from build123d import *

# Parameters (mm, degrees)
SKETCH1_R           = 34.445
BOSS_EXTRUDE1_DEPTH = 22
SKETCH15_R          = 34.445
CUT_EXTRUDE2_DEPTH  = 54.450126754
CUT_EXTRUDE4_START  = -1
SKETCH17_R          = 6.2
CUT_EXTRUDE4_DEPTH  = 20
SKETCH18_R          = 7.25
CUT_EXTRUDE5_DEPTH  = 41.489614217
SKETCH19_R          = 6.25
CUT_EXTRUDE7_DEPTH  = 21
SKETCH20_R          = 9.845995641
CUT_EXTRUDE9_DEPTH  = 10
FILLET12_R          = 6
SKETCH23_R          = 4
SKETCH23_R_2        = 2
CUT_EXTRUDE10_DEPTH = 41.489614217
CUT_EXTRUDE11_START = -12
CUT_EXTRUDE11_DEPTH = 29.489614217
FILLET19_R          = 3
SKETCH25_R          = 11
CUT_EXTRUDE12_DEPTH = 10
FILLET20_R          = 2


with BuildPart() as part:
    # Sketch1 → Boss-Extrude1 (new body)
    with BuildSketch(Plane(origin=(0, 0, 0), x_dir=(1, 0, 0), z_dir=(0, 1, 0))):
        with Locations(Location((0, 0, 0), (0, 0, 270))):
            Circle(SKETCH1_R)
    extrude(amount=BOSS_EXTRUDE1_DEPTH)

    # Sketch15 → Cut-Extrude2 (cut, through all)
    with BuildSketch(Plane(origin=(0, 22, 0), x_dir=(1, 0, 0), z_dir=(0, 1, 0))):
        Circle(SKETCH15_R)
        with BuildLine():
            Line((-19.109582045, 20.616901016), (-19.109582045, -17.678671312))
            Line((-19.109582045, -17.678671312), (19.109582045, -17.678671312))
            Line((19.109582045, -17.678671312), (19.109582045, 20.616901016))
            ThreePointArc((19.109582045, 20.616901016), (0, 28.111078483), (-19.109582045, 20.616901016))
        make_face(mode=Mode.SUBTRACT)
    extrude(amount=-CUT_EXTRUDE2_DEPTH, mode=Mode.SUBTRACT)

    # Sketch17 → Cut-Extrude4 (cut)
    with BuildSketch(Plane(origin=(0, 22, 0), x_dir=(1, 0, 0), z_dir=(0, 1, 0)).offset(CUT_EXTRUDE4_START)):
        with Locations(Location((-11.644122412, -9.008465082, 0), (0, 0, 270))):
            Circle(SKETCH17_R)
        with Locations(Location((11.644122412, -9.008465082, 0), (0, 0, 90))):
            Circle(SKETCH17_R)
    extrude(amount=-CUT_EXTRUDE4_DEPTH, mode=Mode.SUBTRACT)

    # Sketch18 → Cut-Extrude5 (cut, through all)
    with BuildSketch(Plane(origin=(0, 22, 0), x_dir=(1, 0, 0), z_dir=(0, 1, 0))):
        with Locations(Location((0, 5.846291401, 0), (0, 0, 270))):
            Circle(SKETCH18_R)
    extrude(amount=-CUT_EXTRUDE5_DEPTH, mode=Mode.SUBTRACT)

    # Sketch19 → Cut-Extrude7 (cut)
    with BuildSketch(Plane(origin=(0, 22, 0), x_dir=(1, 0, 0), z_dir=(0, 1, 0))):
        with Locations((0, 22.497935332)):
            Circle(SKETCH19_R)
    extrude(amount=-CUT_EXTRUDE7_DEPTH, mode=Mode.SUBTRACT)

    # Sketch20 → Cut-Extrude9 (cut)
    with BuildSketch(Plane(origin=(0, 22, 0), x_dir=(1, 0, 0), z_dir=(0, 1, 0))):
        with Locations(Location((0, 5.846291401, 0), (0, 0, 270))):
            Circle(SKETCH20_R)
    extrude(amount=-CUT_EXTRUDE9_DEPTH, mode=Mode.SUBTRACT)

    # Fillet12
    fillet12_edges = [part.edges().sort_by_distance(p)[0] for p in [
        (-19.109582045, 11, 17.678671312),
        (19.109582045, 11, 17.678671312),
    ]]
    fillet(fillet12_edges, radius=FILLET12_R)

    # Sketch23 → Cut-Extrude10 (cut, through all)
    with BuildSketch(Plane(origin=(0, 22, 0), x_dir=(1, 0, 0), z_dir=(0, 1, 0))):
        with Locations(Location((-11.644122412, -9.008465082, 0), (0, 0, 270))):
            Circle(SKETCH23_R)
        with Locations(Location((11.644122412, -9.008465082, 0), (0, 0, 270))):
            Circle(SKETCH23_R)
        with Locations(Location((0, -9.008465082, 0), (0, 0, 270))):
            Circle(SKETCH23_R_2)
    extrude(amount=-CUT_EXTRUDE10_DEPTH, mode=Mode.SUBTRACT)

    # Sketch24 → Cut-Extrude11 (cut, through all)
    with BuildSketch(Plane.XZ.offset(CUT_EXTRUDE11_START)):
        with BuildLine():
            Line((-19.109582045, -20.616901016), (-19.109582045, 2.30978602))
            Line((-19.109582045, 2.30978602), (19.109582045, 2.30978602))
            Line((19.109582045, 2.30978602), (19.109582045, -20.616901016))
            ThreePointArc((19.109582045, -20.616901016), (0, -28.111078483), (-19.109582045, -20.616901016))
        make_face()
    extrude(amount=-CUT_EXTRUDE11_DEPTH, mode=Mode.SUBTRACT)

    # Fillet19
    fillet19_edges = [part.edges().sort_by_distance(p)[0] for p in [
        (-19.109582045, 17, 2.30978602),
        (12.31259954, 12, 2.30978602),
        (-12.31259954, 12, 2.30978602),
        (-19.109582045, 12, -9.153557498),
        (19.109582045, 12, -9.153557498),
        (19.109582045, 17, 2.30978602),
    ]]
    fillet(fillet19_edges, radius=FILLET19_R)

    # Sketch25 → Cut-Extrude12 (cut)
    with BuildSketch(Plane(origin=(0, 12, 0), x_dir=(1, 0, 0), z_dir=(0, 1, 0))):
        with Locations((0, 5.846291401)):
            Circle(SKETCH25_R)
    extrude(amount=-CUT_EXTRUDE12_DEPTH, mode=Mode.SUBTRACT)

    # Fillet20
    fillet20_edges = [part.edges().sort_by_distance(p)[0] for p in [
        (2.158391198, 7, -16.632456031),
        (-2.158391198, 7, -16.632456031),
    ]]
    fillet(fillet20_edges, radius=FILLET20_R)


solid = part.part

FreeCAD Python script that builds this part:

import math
import FreeCAD as App
import Part
import Sketcher
Q = App.Units.Quantity


def edges_at(feature, points):
    """Names of the edges that pass closest to the given points."""
    edges = feature.Shape.Edges
    near = lambda p: min(range(len(edges)), key=lambda i: edges[i].distToShape(Part.Vertex(*p))[0])
    return sorted({f"Edge{near(p) + 1}" for p in points})

doc = App.newDocument("Part")
body = doc.addObject("PartDesign::Body", "Body")

sketch1 = body.newObject("Sketcher::SketchObject", "Sketch")
sketch1.AttachmentSupport = (doc.getObject("XZ_Plane"), [""])
sketch1.MapMode = "FlatFace"
sketch1.addGeometry(Part.Circle(App.Vector(0, 0, 0), App.Vector(0, 0, 1), 34), False)
sketch1.addConstraint(Sketcher.Constraint("Coincident", 0, 3, -1, 1))
sketch1.addConstraint(Sketcher.Constraint("Diameter", 0, Q("68.89 mm")))
pad1 = body.newObject("PartDesign::Pad", "Pad")
pad1.Profile = sketch1
pad1.Length = 22
pad1.Reversed = True

sketch2 = body.newObject("Sketcher::SketchObject", "Sketch001")
sketch2.AttachmentSupport = (doc.getObject("XZ_Plane"), [""])
sketch2.MapMode = "FlatFace"
sketch2.AttachmentOffset = App.Placement(App.Vector(0, 0, -22), App.Rotation())
sketch2.addGeometry(Part.Circle(App.Vector(0, 0, 0), App.Vector(0, 0, 1), 34), False)
sketch2.addGeometry(Part.LineSegment(App.Vector(-19, 18, 0), App.Vector(-19, -21, 0)), False)
sketch2.addGeometry(Part.ArcOfCircle(Part.Circle(App.Vector(0, 0, 0), App.Vector(0, 0, 1), 28), math.radians(-133), math.radians(-47)), False)
sketch2.addGeometry(Part.LineSegment(App.Vector(19, -21, 0), App.Vector(19, 18, 0)), False)
sketch2.addGeometry(Part.LineSegment(App.Vector(19, 18, 0), App.Vector(-19, 18, 0)), False)
sketch2.addConstraint(Sketcher.Constraint("Coincident", 1, 2, 2, 1))
sketch2.addConstraint(Sketcher.Constraint("Coincident", 2, 2, 3, 1))
sketch2.addConstraint(Sketcher.Constraint("Coincident", 3, 2, 4, 1))
sketch2.addConstraint(Sketcher.Constraint("Coincident", 4, 2, 1, 1))
sketch2.addConstraint(Sketcher.Constraint("Vertical", 1))
sketch2.addConstraint(Sketcher.Constraint("Vertical", 3))
sketch2.addConstraint(Sketcher.Constraint("Horizontal", 4))
sketch2.addConstraint(Sketcher.Constraint("Coincident", 0, 3, -1, 1))
sketch2.addConstraint(Sketcher.Constraint("Coincident", 2, 3, -1, 1))
sketch2.addConstraint(Sketcher.Constraint("Horizontal", 1, 2, 2, 2))
sketch2.addConstraint(Sketcher.Constraint("Diameter", 0, Q("68.89 mm")))
sketch2.addConstraint(Sketcher.Constraint("Radius", 2, Q("28.111078 mm")))
sketch2.addConstraint(Sketcher.Constraint("DistanceY", 1, 2, -1, 1, Q("20.616901 mm")))
sketch2.addConstraint(Sketcher.Constraint("DistanceY", 1, 2, 1, 1, Q("38.295572 mm")))
pocket1 = body.newObject("PartDesign::Pocket", "Pocket")
pocket1.Profile = sketch2
pocket1.Type = "ThroughAll"
pocket1.Reversed = True

sketch3 = body.newObject("Sketcher::SketchObject", "Sketch002")
sketch3.AttachmentSupport = (doc.getObject("XZ_Plane"), [""])
sketch3.MapMode = "FlatFace"
sketch3.AttachmentOffset = App.Placement(App.Vector(0, 0, -21), App.Rotation())
sketch3.addGeometry(Part.Circle(App.Vector(-12, 9, 0), App.Vector(0, 0, 1), 6), False)
sketch3.addGeometry(Part.Circle(App.Vector(12, 9, 0), App.Vector(0, 0, 1), 6), False)
sketch3.addConstraint(Sketcher.Constraint("Equal", 0, 1))
sketch3.addConstraint(Sketcher.Constraint("Symmetric", 0, 3, 1, 3, -2))
sketch3.addConstraint(Sketcher.Constraint("Diameter", 0, Q("12.4 mm")))
sketch3.addConstraint(Sketcher.Constraint("DistanceX", 0, 3, -1, 1, Q("11.644122 mm")))
sketch3.addConstraint(Sketcher.Constraint("DistanceY", -1, 1, 0, 3, Q("9.008465 mm")))
pocket2 = body.newObject("PartDesign::Pocket", "Pocket001")
pocket2.Profile = sketch3
pocket2.Length = 20
pocket2.Reversed = True

sketch4 = body.newObject("Sketcher::SketchObject", "Sketch003")
sketch4.AttachmentSupport = (doc.getObject("XZ_Plane"), [""])
sketch4.MapMode = "FlatFace"
sketch4.AttachmentOffset = App.Placement(App.Vector(0, 0, -22), App.Rotation())
sketch4.addGeometry(Part.Circle(App.Vector(0, -6, 0), App.Vector(0, 0, 1), 7), False)
sketch4.addConstraint(Sketcher.Constraint("PointOnObject", 0, 3, -2))
sketch4.addConstraint(Sketcher.Constraint("Diameter", 0, Q("14.5 mm")))
sketch4.addConstraint(Sketcher.Constraint("DistanceY", 0, 3, -1, 1, Q("5.846291 mm")))
pocket3 = body.newObject("PartDesign::Pocket", "Pocket002")
pocket3.Profile = sketch4
pocket3.Type = "ThroughAll"
pocket3.Reversed = True

sketch5 = body.newObject("Sketcher::SketchObject", "Sketch004")
sketch5.AttachmentSupport = (doc.getObject("XZ_Plane"), [""])
sketch5.MapMode = "FlatFace"
sketch5.AttachmentOffset = App.Placement(App.Vector(0, 0, -22), App.Rotation())
sketch5.addGeometry(Part.Circle(App.Vector(0, -22, 0), App.Vector(0, 0, 1), 6), False)
sketch5.addConstraint(Sketcher.Constraint("PointOnObject", 0, 3, -2))
sketch5.addConstraint(Sketcher.Constraint("Diameter", 0, Q("12.5 mm")))
sketch5.addConstraint(Sketcher.Constraint("DistanceY", 0, 3, -1, 1, Q("22.497935 mm")))
pocket4 = body.newObject("PartDesign::Pocket", "Pocket003")
pocket4.Profile = sketch5
pocket4.Length = 21
pocket4.Reversed = True

sketch6 = body.newObject("Sketcher::SketchObject", "Sketch005")
sketch6.AttachmentSupport = (doc.getObject("XZ_Plane"), [""])
sketch6.MapMode = "FlatFace"
sketch6.AttachmentOffset = App.Placement(App.Vector(0, 0, -22), App.Rotation())
sketch6.addGeometry(Part.Circle(App.Vector(0, -6, 0), App.Vector(0, 0, 1), 10), False)
sketch6.addConstraint(Sketcher.Constraint("PointOnObject", 0, 3, -2))
sketch6.addConstraint(Sketcher.Constraint("Diameter", 0, Q("19.691991 mm")))
sketch6.addConstraint(Sketcher.Constraint("DistanceY", 0, 3, -1, 1, Q("5.846291 mm")))
pocket5 = body.newObject("PartDesign::Pocket", "Pocket004")
pocket5.Profile = sketch6
pocket5.Length = 10
pocket5.Reversed = True
doc.recompute()

fillet = body.newObject("PartDesign::Fillet", "Fillet")
fillet.Base = (pocket5, edges_at(pocket5, [(-19.11, 11, 17.679), (19.11, 11, 17.679)]))
fillet.Radius = 6

sketch7 = body.newObject("Sketcher::SketchObject", "Sketch006")
sketch7.AttachmentSupport = (doc.getObject("XZ_Plane"), [""])
sketch7.MapMode = "FlatFace"
sketch7.AttachmentOffset = App.Placement(App.Vector(0, 0, -22), App.Rotation())
sketch7.addGeometry(Part.Circle(App.Vector(-11.6, 9, 0), App.Vector(0, 0, 1), 4), False)
sketch7.addGeometry(Part.Circle(App.Vector(11.6, 9, 0), App.Vector(0, 0, 1), 4), False)
sketch7.addGeometry(Part.Circle(App.Vector(0, 9, 0), App.Vector(0, 0, 1), 2), False)
sketch7.addConstraint(Sketcher.Constraint("Equal", 0, 1))
sketch7.addConstraint(Sketcher.Constraint("Symmetric", 0, 3, 1, 3, -2))
sketch7.addConstraint(Sketcher.Constraint("PointOnObject", 2, 3, -2))
sketch7.addConstraint(Sketcher.Constraint("Horizontal", 1, 3, 2, 3))
sketch7.addConstraint(Sketcher.Constraint("Diameter", 0, Q("8 mm")))
sketch7.addConstraint(Sketcher.Constraint("Diameter", 2, Q("4 mm")))
sketch7.addConstraint(Sketcher.Constraint("DistanceX", 0, 3, -1, 1, Q("11.644122 mm")))
sketch7.addConstraint(Sketcher.Constraint("DistanceY", -1, 1, 0, 3, Q("9.008465 mm")))
pocket6 = body.newObject("PartDesign::Pocket", "Pocket005")
pocket6.Profile = sketch7
pocket6.Type = "ThroughAll"
pocket6.Reversed = True

sketch8 = body.newObject("Sketcher::SketchObject", "Sketch007")
sketch8.AttachmentSupport = (doc.getObject("XZ_Plane"), [""])
sketch8.MapMode = "FlatFace"
sketch8.AttachmentOffset = App.Placement(App.Vector(0, 0, -12), App.Rotation())
sketch8.addGeometry(Part.LineSegment(App.Vector(-19, 2, 0), App.Vector(-19, -21, 0)), False)
sketch8.addGeometry(Part.ArcOfCircle(Part.Circle(App.Vector(0, 0, 0), App.Vector(0, 0, 1), 28), math.radians(-133), math.radians(-47)), False)
sketch8.addGeometry(Part.LineSegment(App.Vector(19, -21, 0), App.Vector(19, 2, 0)), False)
sketch8.addGeometry(Part.LineSegment(App.Vector(19, 2, 0), App.Vector(-19, 2, 0)), False)
sketch8.addConstraint(Sketcher.Constraint("Coincident", 0, 2, 1, 1))
sketch8.addConstraint(Sketcher.Constraint("Coincident", 1, 2, 2, 1))
sketch8.addConstraint(Sketcher.Constraint("Coincident", 2, 2, 3, 1))
sketch8.addConstraint(Sketcher.Constraint("Coincident", 3, 2, 0, 1))
sketch8.addConstraint(Sketcher.Constraint("Vertical", 0))
sketch8.addConstraint(Sketcher.Constraint("Vertical", 2))
sketch8.addConstraint(Sketcher.Constraint("Horizontal", 3))
sketch8.addConstraint(Sketcher.Constraint("Coincident", 1, 3, -1, 1))
sketch8.addConstraint(Sketcher.Constraint("Horizontal", 0, 2, 1, 2))
sketch8.addConstraint(Sketcher.Constraint("Radius", 1, Q("28.111078 mm")))
sketch8.addConstraint(Sketcher.Constraint("DistanceY", 0, 2, -1, 1, Q("20.616901 mm")))
sketch8.addConstraint(Sketcher.Constraint("DistanceY", 0, 2, 0, 1, Q("22.926687 mm")))
pocket7 = body.newObject("PartDesign::Pocket", "Pocket006")
pocket7.Profile = sketch8
pocket7.Type = "ThroughAll"
doc.recompute()

fillet2 = body.newObject("PartDesign::Fillet", "Fillet001")
fillet2.Base = (pocket7, edges_at(pocket7, [
    (-19.11, 17, 2.31),
    (12.313, 12, 2.31),
    (-12.313, 12, 2.31),
    (-19.11, 12, -9.154),
    (19.11, 12, -9.154),
    (19.11, 17, 2.31),
]))
fillet2.Radius = 3

sketch9 = body.newObject("Sketcher::SketchObject", "Sketch008")
sketch9.AttachmentSupport = (doc.getObject("XZ_Plane"), [""])
sketch9.MapMode = "FlatFace"
sketch9.AttachmentOffset = App.Placement(App.Vector(0, 0, -12), App.Rotation())
sketch9.addGeometry(Part.Circle(App.Vector(0, -6, 0), App.Vector(0, 0, 1), 11), False)
sketch9.addConstraint(Sketcher.Constraint("PointOnObject", 0, 3, -2))
sketch9.addConstraint(Sketcher.Constraint("Diameter", 0, Q("22 mm")))
sketch9.addConstraint(Sketcher.Constraint("DistanceY", 0, 3, -1, 1, Q("5.846291 mm")))
pocket8 = body.newObject("PartDesign::Pocket", "Pocket007")
pocket8.Profile = sketch9
pocket8.Length = 10
pocket8.Reversed = True
doc.recompute()

fillet3 = body.newObject("PartDesign::Fillet", "Fillet002")
fillet3.Base = (pocket8, edges_at(pocket8, [(2.158, 7, -16.632), (-2.158, 7, -16.632)]))
fillet3.Radius = 2

doc.recompute()
